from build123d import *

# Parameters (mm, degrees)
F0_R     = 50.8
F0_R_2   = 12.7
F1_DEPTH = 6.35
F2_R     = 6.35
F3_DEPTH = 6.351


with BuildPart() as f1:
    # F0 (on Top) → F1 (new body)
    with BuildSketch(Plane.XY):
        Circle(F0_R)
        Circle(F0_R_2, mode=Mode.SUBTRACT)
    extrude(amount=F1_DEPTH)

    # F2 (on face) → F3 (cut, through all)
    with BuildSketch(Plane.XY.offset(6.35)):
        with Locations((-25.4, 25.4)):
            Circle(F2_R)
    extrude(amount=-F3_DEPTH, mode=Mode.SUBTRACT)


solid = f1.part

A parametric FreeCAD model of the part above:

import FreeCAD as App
import Part
import Sketcher
Q = App.Units.Quantity

doc = App.newDocument("Part")
params = doc.addObject("Spreadsheet::Sheet", "Params")
for row, (alias, value) in enumerate([
    ("sketch1_diameter", "4 in"),
    ("sketch1_diameter2", "1 in"),
    ("pad1_length", "0.25 in"),
    ("sketch2_diameter", "0.5 in"),
], start=1):
    params.set(f"A{row}", alias)
    params.set(f"B{row}", "=" + value)
    params.setAlias(f"B{row}", alias)

body = doc.addObject("PartDesign::Body", "Body")

sketch1 = body.newObject("Sketcher::SketchObject", "Sketch")
sketch1.AttachmentSupport = (doc.getObject("XY_Plane"), [""])
sketch1.MapMode = "FlatFace"
sketch1.addGeometry([
    Part.Circle(App.Vector(0, 0, 0), App.Vector(0, 0, 1), 51),
    Part.Circle(App.Vector(0, 0, 0), App.Vector(0, 0, 1), 13),
], False)
sketch1.addConstraint([
    Sketcher.Constraint("Coincident", 0, 3, -1, 1),
    Sketcher.Constraint("Coincident", 1, 3, -1, 1),
    Sketcher.Constraint("Diameter", 0, Q("4 in")),
    Sketcher.Constraint("Diameter", 1, Q("1 in")),
])
sketch1.setExpression("Constraints[2]", "Params.sketch1_diameter")
sketch1.setExpression("Constraints[3]", "Params.sketch1_diameter2")
pad1 = body.newObject("PartDesign::Pad", "Pad")
pad1.Profile = sketch1
pad1.setExpression("Length", "Params.pad1_length")

sketch2 = body.newObject("Sketcher::SketchObject", "Sketch001")
sketch2.AttachmentSupport = (doc.getObject("XY_Plane"), [""])
sketch2.MapMode = "FlatFace"
sketch2.AttachmentOffset = App.Placement(App.Vector(0, 0, 0.25 * 25.4), App.Rotation())
sketch2.addGeometry(Part.Circle(App.Vector(-25, 25, 0), App.Vector(0, 0, 1), 6), False)
sketch2.addConstraint([
    Sketcher.Constraint("Diameter", 0, Q("0.5 in")),
    Sketcher.Constraint("DistanceX", 0, 3, -1, 1, Q("1 in")),
    Sketcher.Constraint("DistanceY", -1, 1, 0, 3, Q("1 in")),
])
sketch2.setExpression("Constraints[0]", "Params.sketch2_diameter")
pocket1 = body.newObject("PartDesign::Pocket", "Pocket")
pocket1.Profile = sketch2
pocket1.Type = "ThroughAll"

doc.recompute()
